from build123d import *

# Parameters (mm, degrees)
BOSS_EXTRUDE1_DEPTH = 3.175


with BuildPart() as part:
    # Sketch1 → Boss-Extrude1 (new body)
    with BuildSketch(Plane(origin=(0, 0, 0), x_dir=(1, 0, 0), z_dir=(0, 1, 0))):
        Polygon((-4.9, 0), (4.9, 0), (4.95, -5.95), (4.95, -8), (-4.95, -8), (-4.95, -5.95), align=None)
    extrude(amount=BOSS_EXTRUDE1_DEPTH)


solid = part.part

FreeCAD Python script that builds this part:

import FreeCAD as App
import Part
import Sketcher
from FreeCAD import Vector
Q = App.Units.Quantity

doc = App.newDocument("Part")
body = doc.addObject("PartDesign::Body", "Body")

sketch1 = doc.addObject("Sketcher::SketchObject", "Sketch")
body.addObject(sketch1)
sketch1.AttachmentSupport = (doc.XZ_Plane, [""])
sketch1.MapMode = "FlatFace"
sketch1.addGeometry([
    Part.LineSegment(Vector(4.9, 0, 0), Vector(-4.9, 0, 0)),
    Part.LineSegment(Vector(-4.9, 0, 0), Vector(-5, 6, 0)),
    Part.LineSegment(Vector(-5, 6, 0), Vector(-5, 8, 0)),
    Part.LineSegment(Vector(-5, 8, 0), Vector(5, 8, 0)),
    Part.LineSegment(Vector(5, 8, 0), Vector(5, 6, 0)),
    Part.LineSegment(Vector(5, 6, 0), Vector(4.9, 0, 0)),
], False)
sketch1.addConstraint([
    Sketcher.Constraint("Coincident", 0, 2, 1, 1),
    Sketcher.Constraint("Coincident", 1, 2, 2, 1),
    Sketcher.Constraint("Coincident", 2, 2, 3, 1),
    Sketcher.Constraint("Coincident", 3, 2, 4, 1),
    Sketcher.Constraint("Coincident", 4, 2, 5, 1),
    Sketcher.Constraint("Coincident", 5, 2, 0, 1),
    Sketcher.Constraint("Horizontal", 0),
    Sketcher.Constraint("Vertical", 2),
    Sketcher.Constraint("Horizontal", 3),
    Sketcher.Constraint("Vertical", 4),
    Sketcher.Constraint("Symmetric", 0, 2, 5, 2, -1, 1),
    Sketcher.Constraint("Symmetric", 1, 2, 4, 2, -2),
    Sketcher.Constraint("DistanceX", 0, 2, 0, 1, Q("9.8 mm")),
    Sketcher.Constraint("DistanceX", 3, 1, 3, 2, Q("9.9 mm")),
    Sketcher.Constraint("DistanceY", -1, 1, 2, 2, Q("8 mm")),
    Sketcher.Constraint("DistanceY", 2, 1, 2, 2, Q("2.05 mm")),
])
pad1 = doc.addObject("PartDesign::Pad", "Pad")
body.addObject(pad1)
pad1.Profile = sketch1
pad1.Length = 3.175
pad1.Reversed = True

doc.recompute()
